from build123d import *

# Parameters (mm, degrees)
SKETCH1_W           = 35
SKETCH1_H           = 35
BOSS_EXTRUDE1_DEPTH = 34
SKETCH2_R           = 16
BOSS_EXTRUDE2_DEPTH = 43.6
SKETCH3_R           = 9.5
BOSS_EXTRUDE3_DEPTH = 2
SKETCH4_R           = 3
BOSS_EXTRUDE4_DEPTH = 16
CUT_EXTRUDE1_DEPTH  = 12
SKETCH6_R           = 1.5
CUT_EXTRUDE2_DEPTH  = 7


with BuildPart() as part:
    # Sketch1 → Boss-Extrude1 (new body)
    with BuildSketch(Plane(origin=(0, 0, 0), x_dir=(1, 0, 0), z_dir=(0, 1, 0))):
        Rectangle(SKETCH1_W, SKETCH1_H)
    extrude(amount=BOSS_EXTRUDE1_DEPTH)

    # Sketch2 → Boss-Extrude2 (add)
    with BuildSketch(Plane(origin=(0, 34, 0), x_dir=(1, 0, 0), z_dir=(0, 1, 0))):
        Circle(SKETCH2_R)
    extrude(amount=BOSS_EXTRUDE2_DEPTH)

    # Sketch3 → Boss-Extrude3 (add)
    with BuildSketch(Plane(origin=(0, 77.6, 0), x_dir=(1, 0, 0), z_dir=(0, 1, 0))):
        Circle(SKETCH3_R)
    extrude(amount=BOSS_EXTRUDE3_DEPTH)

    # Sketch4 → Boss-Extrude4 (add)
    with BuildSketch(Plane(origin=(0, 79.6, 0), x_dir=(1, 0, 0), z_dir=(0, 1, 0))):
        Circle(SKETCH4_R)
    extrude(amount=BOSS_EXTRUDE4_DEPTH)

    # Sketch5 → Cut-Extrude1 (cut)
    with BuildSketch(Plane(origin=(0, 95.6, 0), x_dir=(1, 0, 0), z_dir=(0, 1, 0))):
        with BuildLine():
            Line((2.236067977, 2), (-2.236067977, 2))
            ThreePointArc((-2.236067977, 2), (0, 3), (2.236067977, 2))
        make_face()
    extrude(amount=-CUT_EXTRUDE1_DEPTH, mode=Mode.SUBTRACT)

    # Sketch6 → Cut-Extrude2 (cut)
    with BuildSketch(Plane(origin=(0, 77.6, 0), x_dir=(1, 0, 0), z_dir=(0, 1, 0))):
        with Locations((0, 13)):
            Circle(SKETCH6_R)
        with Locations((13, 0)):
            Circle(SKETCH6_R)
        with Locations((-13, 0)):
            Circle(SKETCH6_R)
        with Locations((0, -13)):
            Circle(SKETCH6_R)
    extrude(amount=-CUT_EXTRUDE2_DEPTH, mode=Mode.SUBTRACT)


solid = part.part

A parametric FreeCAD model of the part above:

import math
import FreeCAD as App
import Part
import Sketcher

V = App.Vector
Q = App.Units.Quantity


def add_polygon(sketch, points):
    """Adds a closed chain of lines whose ends are joined by coincident constraints."""
    first, n = sketch.GeometryCount, len(points)
    for a, b in zip(points, points[1:] + points[:1]):
        sketch.addGeometry(Part.LineSegment(App.Vector(*a, 0), App.Vector(*b, 0)), False)
    for i in range(n):
        sketch.addConstraint(Sketcher.Constraint("Coincident", first + i, 2, first + (i + 1) % n, 1))

doc = App.newDocument("Part")
body = doc.addObject("PartDesign::Body", "Body")

# Sketch on XZ plane
sketch1 = doc.addObject("Sketcher::SketchObject", "Sketch")
body.addObject(sketch1)
sketch1.AttachmentSupport = (doc.XZ_Plane, [""])
sketch1.MapMode = "FlatFace"
add_polygon(sketch1, [(-18, -18), (-18, 18), (18, 18), (18, -18)])  # lines 0-3
sketch1.addConstraint([
    Sketcher.Constraint("Vertical", 0),
    Sketcher.Constraint("Horizontal", 1),
    Sketcher.Constraint("Vertical", 2),
    Sketcher.Constraint("Horizontal", 3),
    Sketcher.Constraint("Symmetric", 0, 2, 2, 2, -1, 1),
    Sketcher.Constraint("Equal", 3, 0),
    Sketcher.Constraint("DistanceX", 1, 1, 1, 2, Q("35 mm")),
])
pad1 = doc.addObject("PartDesign::Pad", "Pad")
body.addObject(pad1)
pad1.Profile = sketch1
pad1.Length = 34
pad1.Reversed = True

# Sketch on XZ plane
sketch2 = doc.addObject("Sketcher::SketchObject", "Sketch001")
body.addObject(sketch2)
sketch2.AttachmentSupport = (doc.XZ_Plane, [""])
sketch2.MapMode = "FlatFace"
sketch2.AttachmentOffset = App.Placement(V(0, 0, -34), App.Rotation())
sketch2.addGeometry(Part.Circle(V(0, 0, 0), V(0, 0, 1), 16), False)
sketch2.addConstraint([
    Sketcher.Constraint("Coincident", 0, 3, -1, 1),
    Sketcher.Constraint("Diameter", 0, Q("32 mm")),
])
pad2 = doc.addObject("PartDesign::Pad", "Pad001")
body.addObject(pad2)
pad2.Profile = sketch2
pad2.Length = 43.6
pad2.Reversed = True

# Sketch on XZ plane
sketch3 = doc.addObject("Sketcher::SketchObject", "Sketch002")
body.addObject(sketch3)
sketch3.AttachmentSupport = (doc.XZ_Plane, [""])
sketch3.MapMode = "FlatFace"
sketch3.AttachmentOffset = App.Placement(V(0, 0, -77.6), App.Rotation())
sketch3.addGeometry(Part.Circle(V(0, 0, 0), V(0, 0, 1), 10), False)
sketch3.addConstraint([
    Sketcher.Constraint("Coincident", 0, 3, -1, 1),
    Sketcher.Constraint("Diameter", 0, Q("19 mm")),
])
pad3 = doc.addObject("PartDesign::Pad", "Pad002")
body.addObject(pad3)
pad3.Profile = sketch3
pad3.Length = 2
pad3.Reversed = True

# Sketch on XZ plane
sketch4 = doc.addObject("Sketcher::SketchObject", "Sketch003")
body.addObject(sketch4)
sketch4.AttachmentSupport = (doc.XZ_Plane, [""])
sketch4.MapMode = "FlatFace"
sketch4.AttachmentOffset = App.Placement(V(0, 0, -79.6), App.Rotation())
sketch4.addGeometry(Part.Circle(V(0, 0, 0), V(0, 0, 1), 3), False)
sketch4.addConstraint([
    Sketcher.Constraint("Coincident", 0, 3, -1, 1),
    Sketcher.Constraint("Diameter", 0, Q("6 mm")),
])
pad4 = doc.addObject("PartDesign::Pad", "Pad003")
body.addObject(pad4)
pad4.Profile = sketch4
pad4.Length = 16
pad4.Reversed = True

# Sketch on XZ plane
sketch5 = doc.addObject("Sketcher::SketchObject", "Sketch004")
body.addObject(sketch5)
sketch5.AttachmentSupport = (doc.XZ_Plane, [""])
sketch5.MapMode = "FlatFace"
sketch5.AttachmentOffset = App.Placement(V(0, 0, -95.6), App.Rotation())
sketch5.addGeometry([
    Part.LineSegment(V(-2.2, -2, 0), V(2.2, -2, 0)),
    Part.ArcOfCircle(Part.Circle(V(0, 0, 0), V(0, 0, 1), 3), math.radians(-138), math.radians(-42)),
], False)
sketch5.addConstraint([
    Sketcher.Constraint("Coincident", 0, 1, 1, 1),
    Sketcher.Constraint("Coincident", 1, 2, 0, 2),
    Sketcher.Constraint("Horizontal", 0),
    Sketcher.Constraint("Coincident", 1, 3, -1, 1),
    Sketcher.Constraint("Radius", 1, Q("3 mm")),
    Sketcher.Constraint("DistanceY", 0, 1, -1, 1, Q("2 mm")),
])
pocket1 = doc.addObject("PartDesign::Pocket", "Pocket")
body.addObject(pocket1)
pocket1.Profile = sketch5
pocket1.Length = 12
pocket1.Reversed = True

# Sketch on XZ plane
sketch6 = doc.addObject("Sketcher::SketchObject", "Sketch005")
body.addObject(sketch6)
sketch6.AttachmentSupport = (doc.XZ_Plane, [""])
sketch6.MapMode = "FlatFace"
sketch6.AttachmentOffset = App.Placement(V(0, 0, -77.6), App.Rotation())
sketch6.addGeometry([
    Part.Circle(V(0, -13, 0), V(0, 0, 1), 1.5),
    Part.Circle(V(13, 0, 0), V(0, 0, 1), 1.5),
    Part.Circle(V(-13, 0, 0), V(0, 0, 1), 1.5),
    Part.Circle(V(0, 13, 0), V(0, 0, 1), 1.5),
], False)
sketch6.addConstraint([
    Sketcher.Constraint("Equal", 0, 1),
    Sketcher.Constraint("Equal", 1, 2),
    Sketcher.Constraint("Equal", 2, 3),
    Sketcher.Constraint("Symmetric", 1, 3, 2, 3, -1, 1),
    Sketcher.Constraint("Symmetric", 0, 3, 3, 3, -1, 1),
    Sketcher.Constraint("PointOnObject", 0, 3, -2),
    Sketcher.Constraint("PointOnObject", 1, 3, -1),
    Sketcher.Constraint("Diameter", 0, Q("3 mm")),
    Sketcher.Constraint("DistanceY", 0, 3, -1, 1, Q("13 mm")),
    Sketcher.Constraint("DistanceX", -1, 1, 1, 3, Q("13 mm")),
])
pocket2 = doc.addObject("PartDesign::Pocket", "Pocket001")
body.addObject(pocket2)
pocket2.Profile = sketch6
pocket2.Length = 7
pocket2.Reversed = True

doc.recompute()
